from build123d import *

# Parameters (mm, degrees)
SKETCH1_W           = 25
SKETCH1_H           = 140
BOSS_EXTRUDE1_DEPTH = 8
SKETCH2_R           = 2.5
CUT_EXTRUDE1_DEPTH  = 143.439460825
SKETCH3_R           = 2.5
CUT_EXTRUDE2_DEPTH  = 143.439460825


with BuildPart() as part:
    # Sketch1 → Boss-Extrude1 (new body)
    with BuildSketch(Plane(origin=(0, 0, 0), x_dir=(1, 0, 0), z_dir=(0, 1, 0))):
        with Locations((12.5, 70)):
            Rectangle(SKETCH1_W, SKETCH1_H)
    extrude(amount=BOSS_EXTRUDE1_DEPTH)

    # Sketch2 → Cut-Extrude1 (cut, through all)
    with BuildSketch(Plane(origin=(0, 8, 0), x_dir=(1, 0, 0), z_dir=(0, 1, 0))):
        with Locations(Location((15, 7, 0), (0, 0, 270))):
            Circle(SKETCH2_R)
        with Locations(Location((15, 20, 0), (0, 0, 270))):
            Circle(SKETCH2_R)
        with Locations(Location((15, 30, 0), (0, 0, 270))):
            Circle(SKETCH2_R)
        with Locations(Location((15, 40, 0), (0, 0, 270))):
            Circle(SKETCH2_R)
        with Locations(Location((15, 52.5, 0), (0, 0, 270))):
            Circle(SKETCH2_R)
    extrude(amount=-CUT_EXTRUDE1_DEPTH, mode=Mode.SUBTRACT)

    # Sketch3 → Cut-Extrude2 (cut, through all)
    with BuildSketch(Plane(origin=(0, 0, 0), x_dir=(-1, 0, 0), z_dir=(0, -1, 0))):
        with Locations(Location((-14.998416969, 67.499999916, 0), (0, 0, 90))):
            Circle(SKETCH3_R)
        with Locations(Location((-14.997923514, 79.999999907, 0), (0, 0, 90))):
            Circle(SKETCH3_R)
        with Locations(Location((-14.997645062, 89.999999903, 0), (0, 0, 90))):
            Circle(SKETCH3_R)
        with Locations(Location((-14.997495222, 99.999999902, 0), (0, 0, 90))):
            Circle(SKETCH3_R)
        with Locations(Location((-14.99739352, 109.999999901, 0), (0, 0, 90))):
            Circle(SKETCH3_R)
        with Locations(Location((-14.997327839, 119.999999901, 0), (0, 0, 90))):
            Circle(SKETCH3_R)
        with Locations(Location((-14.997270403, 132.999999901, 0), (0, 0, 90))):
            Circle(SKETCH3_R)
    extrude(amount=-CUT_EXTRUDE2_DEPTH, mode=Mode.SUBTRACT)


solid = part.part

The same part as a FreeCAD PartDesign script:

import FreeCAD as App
import Part
import Sketcher

V = App.Vector
Q = App.Units.Quantity

doc = App.newDocument("Part")
params = doc.addObject("Spreadsheet::Sheet", "Params")
for row, (alias, value) in enumerate([
    ("sketch1_width", "25 mm"),
    ("sketch1_height", "140 mm"),
    ("pad1_length", "8 mm"),
    ("sketch2_diameter", "5 mm"),
    ("sketch3_diameter", "5 mm"),
], start=1):
    params.set(f"A{row}", alias)
    params.set(f"B{row}", "=" + value)
    params.setAlias(f"B{row}", alias)

body = doc.addObject("PartDesign::Body", "Body")

# Sketch on XZ plane
sketch1 = doc.addObject("Sketcher::SketchObject", "Sketch")
body.addObject(sketch1)
sketch1.AttachmentSupport = (doc.XZ_Plane, [""])
sketch1.MapMode = "FlatFace"
sketch1.addGeometry(Part.LineSegment(V(0, -140, 0), V(0, 0, 0)), False)
sketch1.addGeometry(Part.LineSegment(V(0, 0, 0), V(25, 0, 0)), False)
sketch1.addGeometry(Part.LineSegment(V(25, 0, 0), V(25, -140, 0)), False)
sketch1.addGeometry(Part.LineSegment(V(25, -140, 0), V(0, -140, 0)), False)
sketch1.addConstraint(Sketcher.Constraint("Coincident", 0, 2, 1, 1))
sketch1.addConstraint(Sketcher.Constraint("Coincident", 1, 2, 2, 1))
sketch1.addConstraint(Sketcher.Constraint("Coincident", 2, 2, 3, 1))
sketch1.addConstraint(Sketcher.Constraint("Coincident", 3, 2, 0, 1))
sketch1.addConstraint(Sketcher.Constraint("Vertical", 0))
sketch1.addConstraint(Sketcher.Constraint("Horizontal", 1))
sketch1.addConstraint(Sketcher.Constraint("Vertical", 2))
sketch1.addConstraint(Sketcher.Constraint("Horizontal", 3))
sketch1.addConstraint(Sketcher.Constraint("Coincident", 0, 2, -1, 1))
sketch1.addConstraint(Sketcher.Constraint("DistanceX", 1, 1, 1, 2, Q("25 mm")))
sketch1.addConstraint(Sketcher.Constraint("DistanceY", 0, 1, 0, 2, Q("140 mm")))
sketch1.setExpression("Constraints[9]", "Params.sketch1_width")
sketch1.setExpression("Constraints[10]", "Params.sketch1_height")
pad1 = doc.addObject("PartDesign::Pad", "Pad")
body.addObject(pad1)
pad1.Profile = sketch1
pad1.setExpression("Length", "Params.pad1_length")
pad1.Reversed = True

# Sketch on XZ plane
sketch2 = doc.addObject("Sketcher::SketchObject", "Sketch001")
body.addObject(sketch2)
sketch2.AttachmentSupport = (doc.XZ_Plane, [""])
sketch2.MapMode = "FlatFace"
sketch2.AttachmentOffset = App.Placement(V(0, 0, -8), App.Rotation())
sketch2.addGeometry(Part.Circle(V(15, -7, 0), V(0, 0, 1), 2.5), False)
sketch2.addGeometry(Part.Circle(V(15, -20, 0), V(0, 0, 1), 2.5), False)
sketch2.addGeometry(Part.Circle(V(15, -30, 0), V(0, 0, 1), 2.5), False)
sketch2.addGeometry(Part.Circle(V(15, -40, 0), V(0, 0, 1), 2.5), False)
sketch2.addGeometry(Part.Circle(V(15, -52.5, 0), V(0, 0, 1), 2.5), False)
sketch2.addConstraint(Sketcher.Constraint("Equal", 0, 1))
sketch2.addConstraint(Sketcher.Constraint("Equal", 1, 2))
sketch2.addConstraint(Sketcher.Constraint("Equal", 2, 3))
sketch2.addConstraint(Sketcher.Constraint("Equal", 3, 4))
sketch2.addConstraint(Sketcher.Constraint("Vertical", 0, 3, 1, 3))
sketch2.addConstraint(Sketcher.Constraint("Vertical", 1, 3, 2, 3))
sketch2.addConstraint(Sketcher.Constraint("Vertical", 2, 3, 3, 3))
sketch2.addConstraint(Sketcher.Constraint("Vertical", 3, 3, 4, 3))
sketch2.addConstraint(Sketcher.Constraint("Diameter", 0, Q("5 mm")))
sketch2.addConstraint(Sketcher.Constraint("DistanceX", -1, 1, 0, 3, Q("15 mm")))
sketch2.addConstraint(Sketcher.Constraint("DistanceY", 0, 3, -1, 1, Q("7 mm")))
sketch2.addConstraint(Sketcher.Constraint("DistanceY", 1, 3, -1, 1, Q("20 mm")))
sketch2.addConstraint(Sketcher.Constraint("DistanceY", 2, 3, -1, 1, Q("30 mm")))
sketch2.addConstraint(Sketcher.Constraint("DistanceY", 3, 3, -1, 1, Q("40 mm")))
sketch2.addConstraint(Sketcher.Constraint("DistanceY", 4, 3, -1, 1, Q("52.5 mm")))
sketch2.setExpression("Constraints[8]", "Params.sketch2_diameter")
pocket1 = doc.addObject("PartDesign::Pocket", "Pocket")
body.addObject(pocket1)
pocket1.Profile = sketch2
pocket1.Type = "ThroughAll"
pocket1.Reversed = True

# Sketch on XZ plane
sketch3 = doc.addObject("Sketcher::SketchObject", "Sketch002")
body.addObject(sketch3)
sketch3.AttachmentSupport = (doc.XZ_Plane, [""])
sketch3.MapMode = "FlatFace"
sketch3.addGeometry(Part.Circle(V(15, -67.5, 0), V(0, 0, 1), 2.5), False)
sketch3.addGeometry(Part.Circle(V(15, -80, 0), V(0, 0, 1), 2.5), False)
sketch3.addGeometry(Part.Circle(V(15, -90, 0), V(0, 0, 1), 2.5), False)
sketch3.addGeometry(Part.Circle(V(15, -100, 0), V(0, 0, 1), 2.5), False)
sketch3.addGeometry(Part.Circle(V(15, -110, 0), V(0, 0, 1), 2.5), False)
sketch3.addGeometry(Part.Circle(V(15, -120, 0), V(0, 0, 1), 2.5), False)
sketch3.addGeometry(Part.Circle(V(15, -133, 0), V(0, 0, 1), 2.5), False)
sketch3.addConstraint(Sketcher.Constraint("Equal", 0, 1))
sketch3.addConstraint(Sketcher.Constraint("Equal", 1, 2))
sketch3.addConstraint(Sketcher.Constraint("Equal", 2, 3))
sketch3.addConstraint(Sketcher.Constraint("Equal", 3, 4))
sketch3.addConstraint(Sketcher.Constraint("Equal", 4, 5))
sketch3.addConstraint(Sketcher.Constraint("Equal", 5, 6))
sketch3.addConstraint(Sketcher.Constraint("Diameter", 0, Q("5 mm")))
sketch3.addConstraint(Sketcher.Constraint("DistanceY", 1, 3, -1, 1, Q("80 mm")))
sketch3.addConstraint(Sketcher.Constraint("DistanceY", 2, 3, -1, 1, Q("90 mm")))
sketch3.addConstraint(Sketcher.Constraint("DistanceY", 3, 3, -1, 1, Q("100 mm")))
sketch3.addConstraint(Sketcher.Constraint("DistanceY", 4, 3, -1, 1, Q("110 mm")))
sketch3.addConstraint(Sketcher.Constraint("DistanceY", 5, 3, -1, 1, Q("120 mm")))
sketch3.addConstraint(Sketcher.Constraint("DistanceY", 6, 3, -1, 1, Q("133 mm")))
sketch3.addConstraint(Sketcher.Constraint("DistanceY", 0, 3, -1, 1, Q("67.5 mm")))
sketch3.addConstraint(Sketcher.Constraint("DistanceX", 4, 3, 3, 3, Q("0.000102 mm")))
sketch3.addConstraint(Sketcher.Constraint("DistanceX", -1, 1, 6, 3, Q("14.99727 mm")))
sketch3.addConstraint(Sketcher.Constraint("DistanceX", 2, 3, 1, 3, Q("0.000278 mm")))
sketch3.addConstraint(Sketcher.Constraint("DistanceX", 2, 3, 0, 3, Q("0.000772 mm")))
sketch3.addConstraint(Sketcher.Constraint("DistanceX", 3, 3, 2, 3, Q("0.00015 mm")))
sketch3.addConstraint(Sketcher.Constraint("DistanceX", 5, 3, 0, 3, Q("0.001089 mm")))
sketch3.addConstraint(Sketcher.Constraint("DistanceX", -1, 1, 0, 3, Q("14.998417 mm")))
sketch3.setExpression("Constraints[6]", "Params.sketch3_diameter")
pocket2 = doc.addObject("PartDesign::Pocket", "Pocket001")
body.addObject(pocket2)
pocket2.Profile = sketch3
pocket2.Type = "ThroughAll"

doc.recompute()
